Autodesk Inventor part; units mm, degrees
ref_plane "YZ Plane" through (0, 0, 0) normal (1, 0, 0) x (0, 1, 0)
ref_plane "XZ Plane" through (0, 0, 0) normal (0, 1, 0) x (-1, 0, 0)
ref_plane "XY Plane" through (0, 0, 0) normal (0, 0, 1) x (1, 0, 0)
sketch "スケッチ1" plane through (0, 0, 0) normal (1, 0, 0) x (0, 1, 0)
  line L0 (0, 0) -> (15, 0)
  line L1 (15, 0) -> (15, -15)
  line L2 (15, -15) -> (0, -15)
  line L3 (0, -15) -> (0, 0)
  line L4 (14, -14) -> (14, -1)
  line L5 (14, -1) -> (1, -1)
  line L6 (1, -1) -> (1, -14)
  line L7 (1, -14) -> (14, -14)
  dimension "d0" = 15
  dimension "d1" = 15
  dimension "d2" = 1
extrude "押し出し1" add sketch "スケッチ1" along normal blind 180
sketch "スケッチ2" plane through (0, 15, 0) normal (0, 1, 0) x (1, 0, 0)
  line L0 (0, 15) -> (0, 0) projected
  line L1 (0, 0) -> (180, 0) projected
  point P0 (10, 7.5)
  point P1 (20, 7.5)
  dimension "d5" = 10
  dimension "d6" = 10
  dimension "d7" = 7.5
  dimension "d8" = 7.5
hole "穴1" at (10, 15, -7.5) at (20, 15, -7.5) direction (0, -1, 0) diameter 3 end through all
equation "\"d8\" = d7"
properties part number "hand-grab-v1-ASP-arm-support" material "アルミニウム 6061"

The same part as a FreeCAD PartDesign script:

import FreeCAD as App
import Part
import Sketcher

doc = App.newDocument("Part")
body = doc.addObject("PartDesign::Body", "Body")

# Sketch on YZ plane
sketch1 = body.newObject("Sketcher::SketchObject", "Sketch")
sketch1.AttachmentSupport = (doc.getObject("YZ_Plane"), [""])
sketch1.MapMode = "FlatFace"
sketch1.addGeometry([
    Part.LineSegment(App.Vector(15, 0, 0), App.Vector(0, 0, 0)),  # 0
    Part.LineSegment(App.Vector(0, 0, 0), App.Vector(0, -15, 0)),  # 1
    Part.LineSegment(App.Vector(0, -15, 0), App.Vector(15, -15, 0)),  # 2
    Part.LineSegment(App.Vector(15, -15, 0), App.Vector(15, 0, 0)),  # 3
    Part.LineSegment(App.Vector(14, -1, 0), App.Vector(14, -14, 0)),  # 4
    Part.LineSegment(App.Vector(14, -14, 0), App.Vector(1, -14, 0)),  # 5
    Part.LineSegment(App.Vector(1, -14, 0), App.Vector(1, -1, 0)),  # 6
    Part.LineSegment(App.Vector(1, -1, 0), App.Vector(14, -1, 0)),  # 7
], False)
sketch1.addConstraint([
    Sketcher.Constraint("Coincident", 0, 2, 1, 1),
    Sketcher.Constraint("Coincident", 1, 2, 2, 1),
    Sketcher.Constraint("Coincident", 2, 2, 3, 1),
    Sketcher.Constraint("Coincident", 3, 2, 0, 1),
    Sketcher.Constraint("Coincident", 4, 2, 5, 1),
    Sketcher.Constraint("Coincident", 5, 2, 6, 1),
    Sketcher.Constraint("Coincident", 6, 2, 7, 1),
    Sketcher.Constraint("Coincident", 7, 2, 4, 1),
    Sketcher.Constraint("Horizontal", 0),
    Sketcher.Constraint("Vertical", 1),
    Sketcher.Constraint("Horizontal", 2),
    Sketcher.Constraint("Vertical", 3),
    Sketcher.Constraint("Vertical", 4),
    Sketcher.Constraint("Horizontal", 5),
    Sketcher.Constraint("Vertical", 6),
    Sketcher.Constraint("Horizontal", 7),
    Sketcher.Constraint("Coincident", 0, 2, -1, 1),
    Sketcher.Constraint("Equal", 2, 1),
    Sketcher.Constraint("Equal", 7, 4),
    Sketcher.Constraint("DistanceX", 0, 2, 0, 1, 15.0),
    Sketcher.Constraint("DistanceX", -1, 1, 5, 2, 1.0),
    Sketcher.Constraint("DistanceY", 6, 2, -1, 1, 1.0),
    Sketcher.Constraint("DistanceX", 4, 2, 2, 2, 1.0),
])
pad1 = body.newObject("PartDesign::Pad", "Pad")
pad1.Profile = sketch1
pad1.Length = 180

# Sketch on XZ plane
sketch2 = body.newObject("Sketcher::SketchObject", "Sketch001")
sketch2.AttachmentSupport = (doc.getObject("XZ_Plane"), [""])
sketch2.MapMode = "FlatFace"
sketch2.AttachmentOffset = App.Placement(App.Vector(0, 0, -15), App.Rotation())
sketch2.addGeometry([
    Part.Circle(App.Vector(10, -7.5, 0), App.Vector(0, 0, 1), 1.5),
    Part.Circle(App.Vector(20, -7.5, 0), App.Vector(0, 0, 1), 1.5),
], False)
sketch2.addConstraint([
    Sketcher.Constraint("Equal", 0, 1),
    Sketcher.Constraint("Horizontal", 0, 3, 1, 3),
    Sketcher.Constraint("Diameter", 0, 3.0),
    Sketcher.Constraint("DistanceX", -1, 1, 0, 3, 10.0),
    Sketcher.Constraint("DistanceX", -1, 1, 1, 3, 20.0),
    Sketcher.Constraint("DistanceY", 0, 3, -1, 1, 7.5),
])
doc.recompute()
hole = body.newObject("PartDesign::Hole", "Hole")
hole.Profile = sketch2
hole.ThreadType = "None"
hole.Diameter = 3
hole.DepthType = "ThroughAll"
hole.Reversed = True

doc.recompute()
